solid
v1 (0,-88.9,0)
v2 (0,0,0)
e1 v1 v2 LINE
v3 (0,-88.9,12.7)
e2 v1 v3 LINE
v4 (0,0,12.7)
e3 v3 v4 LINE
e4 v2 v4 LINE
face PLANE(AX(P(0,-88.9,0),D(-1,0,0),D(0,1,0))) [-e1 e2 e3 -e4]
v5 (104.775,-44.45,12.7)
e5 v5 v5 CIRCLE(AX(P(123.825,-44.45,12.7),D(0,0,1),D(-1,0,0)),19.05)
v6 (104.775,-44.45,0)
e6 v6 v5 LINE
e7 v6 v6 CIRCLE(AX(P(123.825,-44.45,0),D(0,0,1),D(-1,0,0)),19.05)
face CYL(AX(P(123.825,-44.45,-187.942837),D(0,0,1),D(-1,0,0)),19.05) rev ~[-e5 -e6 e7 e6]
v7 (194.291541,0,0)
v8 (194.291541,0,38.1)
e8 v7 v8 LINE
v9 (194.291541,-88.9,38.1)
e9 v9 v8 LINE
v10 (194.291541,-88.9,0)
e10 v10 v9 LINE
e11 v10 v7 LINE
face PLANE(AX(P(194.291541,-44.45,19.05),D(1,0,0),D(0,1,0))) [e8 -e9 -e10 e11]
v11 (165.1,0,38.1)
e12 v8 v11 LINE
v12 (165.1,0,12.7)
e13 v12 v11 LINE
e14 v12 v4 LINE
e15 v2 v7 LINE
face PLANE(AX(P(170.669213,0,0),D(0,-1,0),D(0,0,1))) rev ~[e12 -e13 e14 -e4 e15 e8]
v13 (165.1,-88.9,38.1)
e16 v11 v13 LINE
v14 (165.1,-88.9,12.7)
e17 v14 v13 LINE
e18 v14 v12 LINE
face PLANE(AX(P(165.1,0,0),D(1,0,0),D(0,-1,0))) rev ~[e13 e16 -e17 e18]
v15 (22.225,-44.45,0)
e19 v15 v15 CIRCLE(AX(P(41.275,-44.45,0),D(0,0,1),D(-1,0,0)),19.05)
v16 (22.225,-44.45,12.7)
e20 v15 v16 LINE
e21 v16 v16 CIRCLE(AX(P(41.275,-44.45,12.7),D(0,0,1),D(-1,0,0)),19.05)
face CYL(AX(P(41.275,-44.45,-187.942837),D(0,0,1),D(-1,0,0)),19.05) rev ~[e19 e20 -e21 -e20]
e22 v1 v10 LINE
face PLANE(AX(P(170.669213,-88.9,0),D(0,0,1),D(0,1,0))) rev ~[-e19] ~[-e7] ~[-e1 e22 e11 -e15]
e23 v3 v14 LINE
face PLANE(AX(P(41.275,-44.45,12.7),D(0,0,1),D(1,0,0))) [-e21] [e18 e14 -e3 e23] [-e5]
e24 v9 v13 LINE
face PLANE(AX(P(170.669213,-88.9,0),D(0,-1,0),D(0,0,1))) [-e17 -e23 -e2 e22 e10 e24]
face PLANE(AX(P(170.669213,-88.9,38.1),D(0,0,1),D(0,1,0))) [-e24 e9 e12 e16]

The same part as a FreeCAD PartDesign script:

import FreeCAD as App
import Part
import Sketcher
from FreeCAD import Vector
Q = App.Units.Quantity


def add_polygon(sketch, points):
    """Adds a closed chain of lines whose ends are joined by coincident constraints."""
    first, n = sketch.GeometryCount, len(points)
    for a, b in zip(points, points[1:] + points[:1]):
        sketch.addGeometry(Part.LineSegment(App.Vector(*a, 0), App.Vector(*b, 0)), False)
    for i in range(n):
        sketch.addConstraint(Sketcher.Constraint("Coincident", first + i, 2, first + (i + 1) % n, 1))

doc = App.newDocument("Part")
body = doc.addObject("PartDesign::Body", "Body")

# Sketch on XY plane
sketch1 = body.newObject("Sketcher::SketchObject", "Sketch")
sketch1.AttachmentSupport = (doc.getObject("XY_Plane"), [""])
sketch1.MapMode = "FlatFace"
add_polygon(sketch1, [(0, 0), (0, -89), (165, -89), (165, 0)])  # lines 0-3
sketch1.addConstraint(Sketcher.Constraint("Vertical", 0))
sketch1.addConstraint(Sketcher.Constraint("Horizontal", 1))
sketch1.addConstraint(Sketcher.Constraint("Vertical", 2))
sketch1.addConstraint(Sketcher.Constraint("Horizontal", 3))
sketch1.addConstraint(Sketcher.Constraint("Coincident", 3, 2, -1, 1))
sketch1.addConstraint(Sketcher.Constraint("DistanceX", 1, 1, 1, 2, Q("6.5 in")))
sketch1.addConstraint(Sketcher.Constraint("DistanceY", 0, 2, 0, 1, Q("3.5 in")))
pad1 = body.newObject("PartDesign::Pad", "Pad")
pad1.Profile = sketch1
pad1.Length = Q("0.5 in")

# Sketch on XY plane
sketch2 = body.newObject("Sketcher::SketchObject", "Sketch001")
sketch2.AttachmentSupport = (doc.getObject("XY_Plane"), [""])
sketch2.MapMode = "FlatFace"
sketch2.addGeometry(Part.Circle(Vector(124, -44, 0), Vector(0, 0, 1), 19), False)
sketch2.addGeometry(Part.Circle(Vector(41, -44, 0), Vector(0, 0, 1), 19), False)
sketch2.addConstraint(Sketcher.Constraint("Equal", 0, 1))
sketch2.addConstraint(Sketcher.Constraint("Horizontal", 0, 3, 1, 3))
sketch2.addConstraint(Sketcher.Constraint("Diameter", 0, Q("1.5 in")))
sketch2.addConstraint(Sketcher.Constraint("DistanceY", 0, 3, -1, 1, Q("1.75 in")))
sketch2.addConstraint(Sketcher.Constraint("DistanceX", 1, 3, 0, 3, Q("3.25 in")))
sketch2.addConstraint(Sketcher.Constraint("DistanceX", -1, 1, 0, 3, Q("4.875 in")))
doc.recompute()
hole = body.newObject("PartDesign::Hole", "Hole")
hole.Profile = sketch2
hole.ThreadType = "None"
hole.Diameter = Q("1.5 in")
hole.DepthType = "ThroughAll"
hole.Reversed = True

# Sketch on XY plane
sketch3 = body.newObject("Sketcher::SketchObject", "Sketch002")
sketch3.AttachmentSupport = (doc.getObject("XY_Plane"), [""])
sketch3.MapMode = "FlatFace"
add_polygon(sketch3, [(165, -89), (165, 0), (171, 0), (171, -89)])  # lines 0-3
sketch3.addConstraint(Sketcher.Constraint("Vertical", 0))
sketch3.addConstraint(Sketcher.Constraint("Horizontal", 1))
sketch3.addConstraint(Sketcher.Constraint("Vertical", 2))
sketch3.addConstraint(Sketcher.Constraint("Horizontal", 3))
sketch3.addConstraint(Sketcher.Constraint("PointOnObject", 0, 2, -1))
sketch3.addConstraint(Sketcher.Constraint("DistanceY", 0, 1, 0, 2, Q("3.5 in")))
sketch3.addConstraint(Sketcher.Constraint("DistanceX", -1, 1, 0, 2, Q("6.5 in")))
sketch3.addConstraint(Sketcher.Constraint("DistanceX", 1, 1, 1, 2, Q("5.569213 mm")))
pad2 = body.newObject("PartDesign::Pad", "Pad001")
pad2.Profile = sketch3
pad2.Length = Q("1.5 in")

# Sketch on YZ plane
sketch4 = body.newObject("Sketcher::SketchObject", "Sketch003")
sketch4.AttachmentSupport = (doc.getObject("YZ_Plane"), [""])
sketch4.MapMode = "FlatFace"
sketch4.AttachmentOffset = App.Placement(Vector(0, 0, 170.669213), App.Rotation())
add_polygon(sketch4, [(-89, 38), (-89, 0), (0, 0), (0, 38)])  # lines 0-3
sketch4.addConstraint(Sketcher.Constraint("Vertical", 0))
sketch4.addConstraint(Sketcher.Constraint("Horizontal", 1))
sketch4.addConstraint(Sketcher.Constraint("Vertical", 2))
sketch4.addConstraint(Sketcher.Constraint("Horizontal", 3))
sketch4.addConstraint(Sketcher.Constraint("Coincident", 1, 2, -1, 1))
sketch4.addConstraint(Sketcher.Constraint("DistanceX", 1, 1, 1, 2, Q("3.5 in")))
sketch4.addConstraint(Sketcher.Constraint("DistanceY", 0, 2, 0, 1, Q("1.5 in")))
pad3 = body.newObject("PartDesign::Pad", "Pad002")
pad3.Profile = sketch4
pad3.Length = 23.622328

doc.recompute()
